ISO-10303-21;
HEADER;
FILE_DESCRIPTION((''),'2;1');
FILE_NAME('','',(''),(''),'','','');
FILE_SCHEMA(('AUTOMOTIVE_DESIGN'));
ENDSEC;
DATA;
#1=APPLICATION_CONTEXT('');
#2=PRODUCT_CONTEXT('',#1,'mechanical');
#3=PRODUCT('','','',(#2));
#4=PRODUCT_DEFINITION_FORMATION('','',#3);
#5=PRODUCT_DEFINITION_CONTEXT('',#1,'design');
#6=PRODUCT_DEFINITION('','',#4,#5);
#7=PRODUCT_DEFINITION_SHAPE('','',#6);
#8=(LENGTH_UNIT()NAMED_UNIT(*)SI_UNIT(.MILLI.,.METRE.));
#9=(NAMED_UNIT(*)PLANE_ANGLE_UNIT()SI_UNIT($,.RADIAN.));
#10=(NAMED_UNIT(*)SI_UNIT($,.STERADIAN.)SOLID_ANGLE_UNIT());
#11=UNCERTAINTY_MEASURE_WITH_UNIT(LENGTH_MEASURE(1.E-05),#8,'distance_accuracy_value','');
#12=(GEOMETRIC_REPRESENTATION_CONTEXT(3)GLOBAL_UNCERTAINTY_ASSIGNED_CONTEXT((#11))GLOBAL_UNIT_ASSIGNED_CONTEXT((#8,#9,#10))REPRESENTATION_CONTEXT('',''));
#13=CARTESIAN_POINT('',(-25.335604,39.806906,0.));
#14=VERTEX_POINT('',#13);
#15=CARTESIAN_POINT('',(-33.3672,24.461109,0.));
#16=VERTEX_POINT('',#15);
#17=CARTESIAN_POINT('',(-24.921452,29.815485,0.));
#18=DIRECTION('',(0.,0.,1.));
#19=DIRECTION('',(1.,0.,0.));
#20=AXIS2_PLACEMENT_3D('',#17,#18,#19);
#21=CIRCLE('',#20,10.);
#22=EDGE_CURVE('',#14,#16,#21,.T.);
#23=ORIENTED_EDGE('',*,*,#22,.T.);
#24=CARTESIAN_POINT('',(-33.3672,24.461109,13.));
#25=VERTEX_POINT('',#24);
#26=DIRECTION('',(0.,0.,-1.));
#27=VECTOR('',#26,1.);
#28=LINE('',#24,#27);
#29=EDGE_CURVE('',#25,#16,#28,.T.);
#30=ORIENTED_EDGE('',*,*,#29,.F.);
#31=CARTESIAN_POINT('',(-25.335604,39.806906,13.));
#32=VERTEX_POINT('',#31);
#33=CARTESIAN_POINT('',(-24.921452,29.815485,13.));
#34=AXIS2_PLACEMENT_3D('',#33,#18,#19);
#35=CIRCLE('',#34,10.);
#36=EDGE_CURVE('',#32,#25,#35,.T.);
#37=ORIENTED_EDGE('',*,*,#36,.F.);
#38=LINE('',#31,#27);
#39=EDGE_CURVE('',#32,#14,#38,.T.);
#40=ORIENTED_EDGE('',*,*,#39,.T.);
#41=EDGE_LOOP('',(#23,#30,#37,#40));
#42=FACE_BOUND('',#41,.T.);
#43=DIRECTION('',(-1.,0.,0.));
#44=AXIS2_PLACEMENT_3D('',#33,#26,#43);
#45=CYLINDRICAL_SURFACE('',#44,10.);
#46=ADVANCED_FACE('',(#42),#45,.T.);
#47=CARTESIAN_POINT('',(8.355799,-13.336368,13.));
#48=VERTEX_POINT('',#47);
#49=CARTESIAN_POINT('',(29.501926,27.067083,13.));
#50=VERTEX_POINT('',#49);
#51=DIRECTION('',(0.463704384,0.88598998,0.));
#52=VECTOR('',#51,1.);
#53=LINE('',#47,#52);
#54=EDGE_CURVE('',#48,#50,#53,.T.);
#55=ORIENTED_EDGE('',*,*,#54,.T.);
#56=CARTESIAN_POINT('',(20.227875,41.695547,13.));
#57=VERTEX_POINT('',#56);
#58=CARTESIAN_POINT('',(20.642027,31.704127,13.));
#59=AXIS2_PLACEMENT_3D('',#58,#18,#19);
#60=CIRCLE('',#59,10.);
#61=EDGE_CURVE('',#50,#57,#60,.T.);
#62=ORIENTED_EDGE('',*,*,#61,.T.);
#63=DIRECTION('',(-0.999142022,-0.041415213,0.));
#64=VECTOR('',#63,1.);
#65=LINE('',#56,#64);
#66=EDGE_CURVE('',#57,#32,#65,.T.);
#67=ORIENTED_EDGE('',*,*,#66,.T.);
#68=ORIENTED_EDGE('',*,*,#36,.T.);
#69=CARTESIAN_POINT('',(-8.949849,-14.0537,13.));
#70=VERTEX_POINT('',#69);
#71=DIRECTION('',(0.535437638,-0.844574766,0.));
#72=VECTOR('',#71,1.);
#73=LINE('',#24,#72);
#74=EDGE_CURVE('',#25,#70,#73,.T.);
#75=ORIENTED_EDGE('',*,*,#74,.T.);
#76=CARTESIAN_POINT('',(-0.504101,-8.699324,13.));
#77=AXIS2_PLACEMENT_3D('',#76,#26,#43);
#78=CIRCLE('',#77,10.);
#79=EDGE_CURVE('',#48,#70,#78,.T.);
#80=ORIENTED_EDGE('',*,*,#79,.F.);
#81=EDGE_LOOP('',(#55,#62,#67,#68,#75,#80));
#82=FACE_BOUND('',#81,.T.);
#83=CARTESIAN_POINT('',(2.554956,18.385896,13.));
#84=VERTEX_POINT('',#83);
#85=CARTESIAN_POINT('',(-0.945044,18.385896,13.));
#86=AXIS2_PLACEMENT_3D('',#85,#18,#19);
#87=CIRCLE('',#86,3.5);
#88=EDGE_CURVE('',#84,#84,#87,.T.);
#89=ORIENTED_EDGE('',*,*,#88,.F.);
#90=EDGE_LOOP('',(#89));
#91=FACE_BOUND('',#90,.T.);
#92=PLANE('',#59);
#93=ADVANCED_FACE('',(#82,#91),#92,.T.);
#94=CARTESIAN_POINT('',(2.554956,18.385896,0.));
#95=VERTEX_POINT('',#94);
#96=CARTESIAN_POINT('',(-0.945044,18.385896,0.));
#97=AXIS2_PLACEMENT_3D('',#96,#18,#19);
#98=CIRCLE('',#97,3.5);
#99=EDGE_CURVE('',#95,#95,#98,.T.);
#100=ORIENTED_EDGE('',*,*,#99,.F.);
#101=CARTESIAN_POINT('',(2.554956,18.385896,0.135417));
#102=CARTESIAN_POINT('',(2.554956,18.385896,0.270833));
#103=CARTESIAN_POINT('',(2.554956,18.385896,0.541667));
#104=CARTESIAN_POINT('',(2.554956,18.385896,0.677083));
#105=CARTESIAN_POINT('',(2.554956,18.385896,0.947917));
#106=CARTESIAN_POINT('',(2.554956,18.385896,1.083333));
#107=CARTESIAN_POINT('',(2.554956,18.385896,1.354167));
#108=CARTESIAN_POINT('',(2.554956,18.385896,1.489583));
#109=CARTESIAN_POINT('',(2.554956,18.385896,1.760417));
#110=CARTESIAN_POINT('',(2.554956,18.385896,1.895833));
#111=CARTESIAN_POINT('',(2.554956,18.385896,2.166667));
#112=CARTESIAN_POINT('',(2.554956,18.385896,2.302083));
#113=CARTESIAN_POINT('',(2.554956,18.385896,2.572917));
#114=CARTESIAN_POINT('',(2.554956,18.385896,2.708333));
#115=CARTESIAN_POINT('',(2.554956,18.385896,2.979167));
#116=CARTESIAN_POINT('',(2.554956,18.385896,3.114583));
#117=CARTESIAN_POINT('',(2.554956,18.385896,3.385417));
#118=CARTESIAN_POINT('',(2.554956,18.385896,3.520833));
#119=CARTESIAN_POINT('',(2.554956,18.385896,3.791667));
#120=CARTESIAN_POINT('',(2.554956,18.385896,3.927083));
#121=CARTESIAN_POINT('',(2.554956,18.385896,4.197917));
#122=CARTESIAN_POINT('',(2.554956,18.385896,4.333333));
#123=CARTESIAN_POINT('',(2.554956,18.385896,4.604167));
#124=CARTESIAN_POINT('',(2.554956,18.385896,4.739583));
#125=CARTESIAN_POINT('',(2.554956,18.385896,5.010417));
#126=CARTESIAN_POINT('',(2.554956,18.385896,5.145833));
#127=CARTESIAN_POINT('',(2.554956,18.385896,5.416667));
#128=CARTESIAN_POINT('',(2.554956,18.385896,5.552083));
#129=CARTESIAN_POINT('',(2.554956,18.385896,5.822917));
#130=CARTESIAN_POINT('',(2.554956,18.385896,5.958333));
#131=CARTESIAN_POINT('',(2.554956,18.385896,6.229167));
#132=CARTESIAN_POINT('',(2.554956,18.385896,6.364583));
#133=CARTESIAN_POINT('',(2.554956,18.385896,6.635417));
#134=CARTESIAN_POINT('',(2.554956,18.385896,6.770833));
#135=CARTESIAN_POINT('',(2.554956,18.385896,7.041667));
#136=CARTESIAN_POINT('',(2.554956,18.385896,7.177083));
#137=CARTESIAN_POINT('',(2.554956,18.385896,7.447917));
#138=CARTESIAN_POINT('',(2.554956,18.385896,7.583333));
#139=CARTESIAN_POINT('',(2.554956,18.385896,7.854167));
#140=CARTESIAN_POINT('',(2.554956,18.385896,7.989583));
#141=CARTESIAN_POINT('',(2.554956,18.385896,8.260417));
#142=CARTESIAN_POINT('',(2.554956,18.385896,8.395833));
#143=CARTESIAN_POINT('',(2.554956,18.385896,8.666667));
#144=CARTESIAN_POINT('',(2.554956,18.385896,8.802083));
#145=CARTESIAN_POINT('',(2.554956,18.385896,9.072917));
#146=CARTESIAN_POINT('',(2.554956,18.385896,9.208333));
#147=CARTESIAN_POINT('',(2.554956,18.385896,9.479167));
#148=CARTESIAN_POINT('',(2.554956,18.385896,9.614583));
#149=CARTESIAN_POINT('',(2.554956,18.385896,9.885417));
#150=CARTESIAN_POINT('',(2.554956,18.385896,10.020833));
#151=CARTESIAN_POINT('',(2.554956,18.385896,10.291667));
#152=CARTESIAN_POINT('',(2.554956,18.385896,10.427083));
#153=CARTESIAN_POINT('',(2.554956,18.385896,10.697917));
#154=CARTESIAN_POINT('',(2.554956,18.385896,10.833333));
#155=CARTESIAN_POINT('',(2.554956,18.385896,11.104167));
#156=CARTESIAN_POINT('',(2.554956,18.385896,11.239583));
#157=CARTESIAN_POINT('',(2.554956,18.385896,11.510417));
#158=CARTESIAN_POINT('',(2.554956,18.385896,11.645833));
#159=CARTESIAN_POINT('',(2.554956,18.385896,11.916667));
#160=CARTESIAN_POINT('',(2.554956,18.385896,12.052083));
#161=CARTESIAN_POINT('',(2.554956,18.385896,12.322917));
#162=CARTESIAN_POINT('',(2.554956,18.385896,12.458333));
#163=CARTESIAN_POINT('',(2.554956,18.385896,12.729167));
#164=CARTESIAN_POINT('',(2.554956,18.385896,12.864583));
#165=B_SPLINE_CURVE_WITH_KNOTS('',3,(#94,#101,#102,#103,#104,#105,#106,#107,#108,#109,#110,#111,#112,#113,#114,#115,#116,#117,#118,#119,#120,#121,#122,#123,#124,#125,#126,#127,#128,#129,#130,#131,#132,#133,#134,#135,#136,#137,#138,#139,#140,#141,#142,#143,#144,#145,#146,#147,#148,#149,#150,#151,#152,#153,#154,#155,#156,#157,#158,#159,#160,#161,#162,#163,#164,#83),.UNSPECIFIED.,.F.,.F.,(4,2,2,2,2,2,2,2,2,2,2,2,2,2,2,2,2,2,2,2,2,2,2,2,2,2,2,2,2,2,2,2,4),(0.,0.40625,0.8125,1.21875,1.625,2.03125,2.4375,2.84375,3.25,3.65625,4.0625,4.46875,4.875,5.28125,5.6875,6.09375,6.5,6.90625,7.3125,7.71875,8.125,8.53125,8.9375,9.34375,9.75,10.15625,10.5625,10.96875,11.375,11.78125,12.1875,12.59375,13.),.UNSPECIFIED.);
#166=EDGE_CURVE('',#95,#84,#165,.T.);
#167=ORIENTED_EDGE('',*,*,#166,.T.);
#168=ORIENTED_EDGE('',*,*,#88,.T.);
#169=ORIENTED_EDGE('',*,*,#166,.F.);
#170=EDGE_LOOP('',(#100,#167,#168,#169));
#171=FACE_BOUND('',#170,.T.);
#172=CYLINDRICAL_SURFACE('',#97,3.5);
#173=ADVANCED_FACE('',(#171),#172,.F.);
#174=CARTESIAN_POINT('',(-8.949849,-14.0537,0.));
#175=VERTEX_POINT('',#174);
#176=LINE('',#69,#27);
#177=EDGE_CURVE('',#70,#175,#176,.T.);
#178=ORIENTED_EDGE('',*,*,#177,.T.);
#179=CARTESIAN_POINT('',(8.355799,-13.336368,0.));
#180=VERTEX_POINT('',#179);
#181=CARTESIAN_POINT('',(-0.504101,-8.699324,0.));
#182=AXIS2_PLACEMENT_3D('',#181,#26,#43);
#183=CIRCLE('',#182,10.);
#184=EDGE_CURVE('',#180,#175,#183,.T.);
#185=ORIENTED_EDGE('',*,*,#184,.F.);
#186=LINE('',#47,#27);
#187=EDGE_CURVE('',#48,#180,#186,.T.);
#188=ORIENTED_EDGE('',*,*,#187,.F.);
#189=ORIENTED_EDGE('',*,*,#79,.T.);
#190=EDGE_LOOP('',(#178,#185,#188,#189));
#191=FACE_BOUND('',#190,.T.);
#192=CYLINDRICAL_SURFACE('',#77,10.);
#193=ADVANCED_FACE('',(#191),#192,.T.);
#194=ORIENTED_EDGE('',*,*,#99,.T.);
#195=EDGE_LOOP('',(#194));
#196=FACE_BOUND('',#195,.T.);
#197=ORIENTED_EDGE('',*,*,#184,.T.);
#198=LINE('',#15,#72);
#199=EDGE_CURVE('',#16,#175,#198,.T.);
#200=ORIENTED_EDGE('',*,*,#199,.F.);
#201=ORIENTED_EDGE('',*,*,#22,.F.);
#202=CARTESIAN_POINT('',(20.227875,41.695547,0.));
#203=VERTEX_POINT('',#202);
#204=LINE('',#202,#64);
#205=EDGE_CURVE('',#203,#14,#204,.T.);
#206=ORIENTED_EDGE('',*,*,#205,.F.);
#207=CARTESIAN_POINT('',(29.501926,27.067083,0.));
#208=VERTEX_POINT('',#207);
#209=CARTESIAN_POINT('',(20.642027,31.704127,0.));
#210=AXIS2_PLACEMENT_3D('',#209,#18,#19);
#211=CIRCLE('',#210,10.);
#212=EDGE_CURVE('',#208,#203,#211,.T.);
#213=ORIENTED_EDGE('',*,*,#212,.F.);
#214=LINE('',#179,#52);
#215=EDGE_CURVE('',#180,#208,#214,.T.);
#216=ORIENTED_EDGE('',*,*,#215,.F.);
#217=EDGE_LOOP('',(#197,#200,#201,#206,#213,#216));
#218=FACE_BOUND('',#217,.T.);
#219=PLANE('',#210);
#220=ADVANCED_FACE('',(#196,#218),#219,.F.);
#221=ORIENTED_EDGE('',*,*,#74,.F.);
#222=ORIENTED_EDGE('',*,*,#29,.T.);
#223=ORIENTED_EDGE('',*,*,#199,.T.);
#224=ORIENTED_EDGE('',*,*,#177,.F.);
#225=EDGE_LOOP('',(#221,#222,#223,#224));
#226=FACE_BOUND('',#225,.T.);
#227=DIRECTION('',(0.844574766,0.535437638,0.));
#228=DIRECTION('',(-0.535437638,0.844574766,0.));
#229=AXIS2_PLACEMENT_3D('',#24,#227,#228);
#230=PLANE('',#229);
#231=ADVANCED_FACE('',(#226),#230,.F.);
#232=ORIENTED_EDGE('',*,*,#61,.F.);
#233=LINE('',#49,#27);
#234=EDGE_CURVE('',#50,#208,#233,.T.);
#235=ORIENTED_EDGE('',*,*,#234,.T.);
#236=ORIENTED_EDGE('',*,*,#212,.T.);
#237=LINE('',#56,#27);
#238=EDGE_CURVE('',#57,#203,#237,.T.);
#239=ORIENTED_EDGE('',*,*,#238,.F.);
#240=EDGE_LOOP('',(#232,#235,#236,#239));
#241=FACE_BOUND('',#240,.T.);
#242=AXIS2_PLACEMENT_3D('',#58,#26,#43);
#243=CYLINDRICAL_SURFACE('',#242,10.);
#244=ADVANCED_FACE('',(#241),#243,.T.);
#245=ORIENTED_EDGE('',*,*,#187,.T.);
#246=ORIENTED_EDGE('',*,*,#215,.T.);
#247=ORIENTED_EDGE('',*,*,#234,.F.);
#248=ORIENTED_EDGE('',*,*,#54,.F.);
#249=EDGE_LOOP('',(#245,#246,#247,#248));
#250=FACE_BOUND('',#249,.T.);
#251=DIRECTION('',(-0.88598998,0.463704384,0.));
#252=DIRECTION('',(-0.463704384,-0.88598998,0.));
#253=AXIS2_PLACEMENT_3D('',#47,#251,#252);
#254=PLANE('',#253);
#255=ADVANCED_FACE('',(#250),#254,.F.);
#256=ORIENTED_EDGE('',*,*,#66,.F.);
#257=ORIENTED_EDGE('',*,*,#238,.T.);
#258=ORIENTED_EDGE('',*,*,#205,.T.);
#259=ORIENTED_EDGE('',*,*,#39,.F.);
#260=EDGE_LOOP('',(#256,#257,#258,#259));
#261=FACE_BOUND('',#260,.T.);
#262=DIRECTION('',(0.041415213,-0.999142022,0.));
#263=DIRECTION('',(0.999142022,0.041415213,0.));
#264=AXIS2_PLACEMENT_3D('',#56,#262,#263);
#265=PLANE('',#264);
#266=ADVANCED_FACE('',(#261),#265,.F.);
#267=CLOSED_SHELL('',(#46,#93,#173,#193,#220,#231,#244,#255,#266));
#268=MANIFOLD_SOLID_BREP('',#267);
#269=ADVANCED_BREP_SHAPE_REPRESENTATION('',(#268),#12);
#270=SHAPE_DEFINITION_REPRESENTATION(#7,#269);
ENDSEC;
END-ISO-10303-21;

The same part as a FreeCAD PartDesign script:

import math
import FreeCAD as App
import Part
import Sketcher
from FreeCAD import Vector
Q = App.Units.Quantity

doc = App.newDocument("Part")
body = doc.addObject("PartDesign::Body", "Body")

# Sketch on XY plane
sketch1 = body.newObject("Sketcher::SketchObject", "Sketch")
sketch1.AttachmentSupport = (doc.getObject("XY_Plane"), [""])
sketch1.MapMode = "FlatFace"
sketch1.addGeometry([
    Part.LineSegment(Vector(8, -13, 0), Vector(30, 27, 0)),  # 0
    Part.ArcOfCircle(Part.Circle(Vector(21, 32, 0), Vector(0, 0, 1), 10), math.radians(-28), math.radians(92)),  # 1
    Part.LineSegment(Vector(20, 42, 0), Vector(-25, 40, 0)),  # 2
    Part.ArcOfCircle(Part.Circle(Vector(-25, 30, 0), Vector(0, 0, 1), 10), math.radians(92), math.radians(212)),  # 3
    Part.LineSegment(Vector(-33, 24, 0), Vector(-9, -14, 0)),  # 4
    Part.ArcOfCircle(Part.Circle(Vector(-1, -9, 0), Vector(0, 0, 1), 10), math.radians(-148), math.radians(-28)),  # 5
], False)
sketch1.addConstraint([
    Sketcher.Constraint("Tangent", 0, 2, 1, 1),
    Sketcher.Constraint("Tangent", 1, 2, 2, 1),
    Sketcher.Constraint("Tangent", 2, 2, 3, 1),
    Sketcher.Constraint("Tangent", 3, 2, 4, 1),
    Sketcher.Constraint("Tangent", 4, 2, 5, 1),
    Sketcher.Constraint("Tangent", 5, 2, 0, 1),
    Sketcher.Constraint("Equal", 1, 3),
    Sketcher.Constraint("Equal", 3, 5),
    Sketcher.Constraint("Equal", 0, 2),
    Sketcher.Constraint("Equal", 2, 4),
    Sketcher.Constraint("Radius", 1, Q("10 mm")),
    Sketcher.Constraint("DistanceX", 5, 3, -1, 1, Q("0.504101 mm")),
    Sketcher.Constraint("DistanceX", 3, 2, -1, 1, Q("33.3672 mm")),
    Sketcher.Constraint("DistanceY", 4, 2, -1, 1, Q("14.0537 mm")),
    Sketcher.Constraint("DistanceX", -1, 1, 5, 2, Q("8.355799 mm")),
])
pad1 = body.newObject("PartDesign::Pad", "Pad")
pad1.Profile = sketch1
pad1.Length = 13

# Sketch on XY plane
sketch2 = body.newObject("Sketcher::SketchObject", "Sketch001")
sketch2.AttachmentSupport = (doc.getObject("XY_Plane"), [""])
sketch2.MapMode = "FlatFace"
sketch2.AttachmentOffset = App.Placement(Vector(0, 0, 13), App.Rotation())
sketch2.addGeometry(Part.Circle(Vector(-0.9, 18.4, 0), Vector(0, 0, 1), 3.5), False)
sketch2.addConstraint([
    Sketcher.Constraint("Diameter", 0, Q("7 mm")),
    Sketcher.Constraint("DistanceX", 0, 3, -1, 1, Q("0.945044 mm")),
    Sketcher.Constraint("DistanceY", -1, 1, 0, 3, Q("18.385896 mm")),
])
pocket1 = body.newObject("PartDesign::Pocket", "Pocket")
pocket1.Profile = sketch2
pocket1.Length = 13

doc.recompute()
